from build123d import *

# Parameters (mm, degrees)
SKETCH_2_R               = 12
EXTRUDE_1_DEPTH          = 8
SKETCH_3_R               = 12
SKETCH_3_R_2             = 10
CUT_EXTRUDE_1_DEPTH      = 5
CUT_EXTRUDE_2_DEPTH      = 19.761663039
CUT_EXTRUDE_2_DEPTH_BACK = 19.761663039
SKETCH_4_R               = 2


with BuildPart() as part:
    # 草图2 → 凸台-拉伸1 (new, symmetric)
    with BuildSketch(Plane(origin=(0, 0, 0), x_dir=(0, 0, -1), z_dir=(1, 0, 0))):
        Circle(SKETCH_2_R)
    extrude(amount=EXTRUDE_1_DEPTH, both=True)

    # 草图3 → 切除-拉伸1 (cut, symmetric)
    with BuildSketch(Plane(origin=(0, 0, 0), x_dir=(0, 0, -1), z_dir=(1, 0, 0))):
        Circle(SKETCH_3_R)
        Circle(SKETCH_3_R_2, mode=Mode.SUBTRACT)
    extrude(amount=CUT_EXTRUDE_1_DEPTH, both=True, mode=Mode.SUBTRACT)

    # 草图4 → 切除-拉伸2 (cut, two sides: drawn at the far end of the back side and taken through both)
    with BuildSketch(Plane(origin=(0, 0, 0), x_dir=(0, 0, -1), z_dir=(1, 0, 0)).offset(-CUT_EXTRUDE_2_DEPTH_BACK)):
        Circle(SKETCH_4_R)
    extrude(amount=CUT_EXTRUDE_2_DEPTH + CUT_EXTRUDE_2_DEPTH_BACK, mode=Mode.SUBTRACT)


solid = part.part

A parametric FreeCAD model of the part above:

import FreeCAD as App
import Part
import Sketcher
from FreeCAD import Vector

doc = App.newDocument("Part")
body = doc.addObject("PartDesign::Body", "Body")

# Sketch on YZ plane
sketch1 = body.newObject("Sketcher::SketchObject", "Sketch")
sketch1.AttachmentSupport = (doc.getObject("YZ_Plane"), [""])
sketch1.MapMode = "FlatFace"
sketch1.addGeometry(Part.Circle(Vector(0, 0, 0), Vector(0, 0, 1), 12), False)
sketch1.addConstraint([
    Sketcher.Constraint("Coincident", 0, 3, -1, 1),
    Sketcher.Constraint("Diameter", 0, 24.0),
])
pad1 = body.newObject("PartDesign::Pad", "Pad")
pad1.Profile = sketch1
pad1.Length = 16
pad1.Midplane = True

# Sketch on YZ plane
sketch2 = body.newObject("Sketcher::SketchObject", "Sketch001")
sketch2.AttachmentSupport = (doc.getObject("YZ_Plane"), [""])
sketch2.MapMode = "FlatFace"
sketch2.addGeometry([
    Part.Circle(Vector(0, 0, 0), Vector(0, 0, 1), 12),
    Part.Circle(Vector(0, 0, 0), Vector(0, 0, 1), 10),
], False)
sketch2.addConstraint([
    Sketcher.Constraint("Coincident", 0, 3, -1, 1),
    Sketcher.Constraint("Coincident", 1, 3, -1, 1),
    Sketcher.Constraint("Diameter", 0, 24.0),
    Sketcher.Constraint("Diameter", 1, 20.0),
])
pocket1 = body.newObject("PartDesign::Pocket", "Pocket")
pocket1.Profile = sketch2
pocket1.Length = 10
pocket1.Midplane = True

# Sketch on YZ plane
sketch3 = body.newObject("Sketcher::SketchObject", "Sketch002")
sketch3.AttachmentSupport = (doc.getObject("YZ_Plane"), [""])
sketch3.MapMode = "FlatFace"
sketch3.addGeometry(Part.Circle(Vector(0, 0, 0), Vector(0, 0, 1), 2), False)
sketch3.addConstraint([
    Sketcher.Constraint("Coincident", 0, 3, -1, 1),
    Sketcher.Constraint("Diameter", 0, 4.0),
])
pocket2 = body.newObject("PartDesign::Pocket", "Pocket001")
pocket2.Profile = sketch3
pocket2.Type = "ThroughAll"
pocket2.Midplane = True

doc.recompute()
